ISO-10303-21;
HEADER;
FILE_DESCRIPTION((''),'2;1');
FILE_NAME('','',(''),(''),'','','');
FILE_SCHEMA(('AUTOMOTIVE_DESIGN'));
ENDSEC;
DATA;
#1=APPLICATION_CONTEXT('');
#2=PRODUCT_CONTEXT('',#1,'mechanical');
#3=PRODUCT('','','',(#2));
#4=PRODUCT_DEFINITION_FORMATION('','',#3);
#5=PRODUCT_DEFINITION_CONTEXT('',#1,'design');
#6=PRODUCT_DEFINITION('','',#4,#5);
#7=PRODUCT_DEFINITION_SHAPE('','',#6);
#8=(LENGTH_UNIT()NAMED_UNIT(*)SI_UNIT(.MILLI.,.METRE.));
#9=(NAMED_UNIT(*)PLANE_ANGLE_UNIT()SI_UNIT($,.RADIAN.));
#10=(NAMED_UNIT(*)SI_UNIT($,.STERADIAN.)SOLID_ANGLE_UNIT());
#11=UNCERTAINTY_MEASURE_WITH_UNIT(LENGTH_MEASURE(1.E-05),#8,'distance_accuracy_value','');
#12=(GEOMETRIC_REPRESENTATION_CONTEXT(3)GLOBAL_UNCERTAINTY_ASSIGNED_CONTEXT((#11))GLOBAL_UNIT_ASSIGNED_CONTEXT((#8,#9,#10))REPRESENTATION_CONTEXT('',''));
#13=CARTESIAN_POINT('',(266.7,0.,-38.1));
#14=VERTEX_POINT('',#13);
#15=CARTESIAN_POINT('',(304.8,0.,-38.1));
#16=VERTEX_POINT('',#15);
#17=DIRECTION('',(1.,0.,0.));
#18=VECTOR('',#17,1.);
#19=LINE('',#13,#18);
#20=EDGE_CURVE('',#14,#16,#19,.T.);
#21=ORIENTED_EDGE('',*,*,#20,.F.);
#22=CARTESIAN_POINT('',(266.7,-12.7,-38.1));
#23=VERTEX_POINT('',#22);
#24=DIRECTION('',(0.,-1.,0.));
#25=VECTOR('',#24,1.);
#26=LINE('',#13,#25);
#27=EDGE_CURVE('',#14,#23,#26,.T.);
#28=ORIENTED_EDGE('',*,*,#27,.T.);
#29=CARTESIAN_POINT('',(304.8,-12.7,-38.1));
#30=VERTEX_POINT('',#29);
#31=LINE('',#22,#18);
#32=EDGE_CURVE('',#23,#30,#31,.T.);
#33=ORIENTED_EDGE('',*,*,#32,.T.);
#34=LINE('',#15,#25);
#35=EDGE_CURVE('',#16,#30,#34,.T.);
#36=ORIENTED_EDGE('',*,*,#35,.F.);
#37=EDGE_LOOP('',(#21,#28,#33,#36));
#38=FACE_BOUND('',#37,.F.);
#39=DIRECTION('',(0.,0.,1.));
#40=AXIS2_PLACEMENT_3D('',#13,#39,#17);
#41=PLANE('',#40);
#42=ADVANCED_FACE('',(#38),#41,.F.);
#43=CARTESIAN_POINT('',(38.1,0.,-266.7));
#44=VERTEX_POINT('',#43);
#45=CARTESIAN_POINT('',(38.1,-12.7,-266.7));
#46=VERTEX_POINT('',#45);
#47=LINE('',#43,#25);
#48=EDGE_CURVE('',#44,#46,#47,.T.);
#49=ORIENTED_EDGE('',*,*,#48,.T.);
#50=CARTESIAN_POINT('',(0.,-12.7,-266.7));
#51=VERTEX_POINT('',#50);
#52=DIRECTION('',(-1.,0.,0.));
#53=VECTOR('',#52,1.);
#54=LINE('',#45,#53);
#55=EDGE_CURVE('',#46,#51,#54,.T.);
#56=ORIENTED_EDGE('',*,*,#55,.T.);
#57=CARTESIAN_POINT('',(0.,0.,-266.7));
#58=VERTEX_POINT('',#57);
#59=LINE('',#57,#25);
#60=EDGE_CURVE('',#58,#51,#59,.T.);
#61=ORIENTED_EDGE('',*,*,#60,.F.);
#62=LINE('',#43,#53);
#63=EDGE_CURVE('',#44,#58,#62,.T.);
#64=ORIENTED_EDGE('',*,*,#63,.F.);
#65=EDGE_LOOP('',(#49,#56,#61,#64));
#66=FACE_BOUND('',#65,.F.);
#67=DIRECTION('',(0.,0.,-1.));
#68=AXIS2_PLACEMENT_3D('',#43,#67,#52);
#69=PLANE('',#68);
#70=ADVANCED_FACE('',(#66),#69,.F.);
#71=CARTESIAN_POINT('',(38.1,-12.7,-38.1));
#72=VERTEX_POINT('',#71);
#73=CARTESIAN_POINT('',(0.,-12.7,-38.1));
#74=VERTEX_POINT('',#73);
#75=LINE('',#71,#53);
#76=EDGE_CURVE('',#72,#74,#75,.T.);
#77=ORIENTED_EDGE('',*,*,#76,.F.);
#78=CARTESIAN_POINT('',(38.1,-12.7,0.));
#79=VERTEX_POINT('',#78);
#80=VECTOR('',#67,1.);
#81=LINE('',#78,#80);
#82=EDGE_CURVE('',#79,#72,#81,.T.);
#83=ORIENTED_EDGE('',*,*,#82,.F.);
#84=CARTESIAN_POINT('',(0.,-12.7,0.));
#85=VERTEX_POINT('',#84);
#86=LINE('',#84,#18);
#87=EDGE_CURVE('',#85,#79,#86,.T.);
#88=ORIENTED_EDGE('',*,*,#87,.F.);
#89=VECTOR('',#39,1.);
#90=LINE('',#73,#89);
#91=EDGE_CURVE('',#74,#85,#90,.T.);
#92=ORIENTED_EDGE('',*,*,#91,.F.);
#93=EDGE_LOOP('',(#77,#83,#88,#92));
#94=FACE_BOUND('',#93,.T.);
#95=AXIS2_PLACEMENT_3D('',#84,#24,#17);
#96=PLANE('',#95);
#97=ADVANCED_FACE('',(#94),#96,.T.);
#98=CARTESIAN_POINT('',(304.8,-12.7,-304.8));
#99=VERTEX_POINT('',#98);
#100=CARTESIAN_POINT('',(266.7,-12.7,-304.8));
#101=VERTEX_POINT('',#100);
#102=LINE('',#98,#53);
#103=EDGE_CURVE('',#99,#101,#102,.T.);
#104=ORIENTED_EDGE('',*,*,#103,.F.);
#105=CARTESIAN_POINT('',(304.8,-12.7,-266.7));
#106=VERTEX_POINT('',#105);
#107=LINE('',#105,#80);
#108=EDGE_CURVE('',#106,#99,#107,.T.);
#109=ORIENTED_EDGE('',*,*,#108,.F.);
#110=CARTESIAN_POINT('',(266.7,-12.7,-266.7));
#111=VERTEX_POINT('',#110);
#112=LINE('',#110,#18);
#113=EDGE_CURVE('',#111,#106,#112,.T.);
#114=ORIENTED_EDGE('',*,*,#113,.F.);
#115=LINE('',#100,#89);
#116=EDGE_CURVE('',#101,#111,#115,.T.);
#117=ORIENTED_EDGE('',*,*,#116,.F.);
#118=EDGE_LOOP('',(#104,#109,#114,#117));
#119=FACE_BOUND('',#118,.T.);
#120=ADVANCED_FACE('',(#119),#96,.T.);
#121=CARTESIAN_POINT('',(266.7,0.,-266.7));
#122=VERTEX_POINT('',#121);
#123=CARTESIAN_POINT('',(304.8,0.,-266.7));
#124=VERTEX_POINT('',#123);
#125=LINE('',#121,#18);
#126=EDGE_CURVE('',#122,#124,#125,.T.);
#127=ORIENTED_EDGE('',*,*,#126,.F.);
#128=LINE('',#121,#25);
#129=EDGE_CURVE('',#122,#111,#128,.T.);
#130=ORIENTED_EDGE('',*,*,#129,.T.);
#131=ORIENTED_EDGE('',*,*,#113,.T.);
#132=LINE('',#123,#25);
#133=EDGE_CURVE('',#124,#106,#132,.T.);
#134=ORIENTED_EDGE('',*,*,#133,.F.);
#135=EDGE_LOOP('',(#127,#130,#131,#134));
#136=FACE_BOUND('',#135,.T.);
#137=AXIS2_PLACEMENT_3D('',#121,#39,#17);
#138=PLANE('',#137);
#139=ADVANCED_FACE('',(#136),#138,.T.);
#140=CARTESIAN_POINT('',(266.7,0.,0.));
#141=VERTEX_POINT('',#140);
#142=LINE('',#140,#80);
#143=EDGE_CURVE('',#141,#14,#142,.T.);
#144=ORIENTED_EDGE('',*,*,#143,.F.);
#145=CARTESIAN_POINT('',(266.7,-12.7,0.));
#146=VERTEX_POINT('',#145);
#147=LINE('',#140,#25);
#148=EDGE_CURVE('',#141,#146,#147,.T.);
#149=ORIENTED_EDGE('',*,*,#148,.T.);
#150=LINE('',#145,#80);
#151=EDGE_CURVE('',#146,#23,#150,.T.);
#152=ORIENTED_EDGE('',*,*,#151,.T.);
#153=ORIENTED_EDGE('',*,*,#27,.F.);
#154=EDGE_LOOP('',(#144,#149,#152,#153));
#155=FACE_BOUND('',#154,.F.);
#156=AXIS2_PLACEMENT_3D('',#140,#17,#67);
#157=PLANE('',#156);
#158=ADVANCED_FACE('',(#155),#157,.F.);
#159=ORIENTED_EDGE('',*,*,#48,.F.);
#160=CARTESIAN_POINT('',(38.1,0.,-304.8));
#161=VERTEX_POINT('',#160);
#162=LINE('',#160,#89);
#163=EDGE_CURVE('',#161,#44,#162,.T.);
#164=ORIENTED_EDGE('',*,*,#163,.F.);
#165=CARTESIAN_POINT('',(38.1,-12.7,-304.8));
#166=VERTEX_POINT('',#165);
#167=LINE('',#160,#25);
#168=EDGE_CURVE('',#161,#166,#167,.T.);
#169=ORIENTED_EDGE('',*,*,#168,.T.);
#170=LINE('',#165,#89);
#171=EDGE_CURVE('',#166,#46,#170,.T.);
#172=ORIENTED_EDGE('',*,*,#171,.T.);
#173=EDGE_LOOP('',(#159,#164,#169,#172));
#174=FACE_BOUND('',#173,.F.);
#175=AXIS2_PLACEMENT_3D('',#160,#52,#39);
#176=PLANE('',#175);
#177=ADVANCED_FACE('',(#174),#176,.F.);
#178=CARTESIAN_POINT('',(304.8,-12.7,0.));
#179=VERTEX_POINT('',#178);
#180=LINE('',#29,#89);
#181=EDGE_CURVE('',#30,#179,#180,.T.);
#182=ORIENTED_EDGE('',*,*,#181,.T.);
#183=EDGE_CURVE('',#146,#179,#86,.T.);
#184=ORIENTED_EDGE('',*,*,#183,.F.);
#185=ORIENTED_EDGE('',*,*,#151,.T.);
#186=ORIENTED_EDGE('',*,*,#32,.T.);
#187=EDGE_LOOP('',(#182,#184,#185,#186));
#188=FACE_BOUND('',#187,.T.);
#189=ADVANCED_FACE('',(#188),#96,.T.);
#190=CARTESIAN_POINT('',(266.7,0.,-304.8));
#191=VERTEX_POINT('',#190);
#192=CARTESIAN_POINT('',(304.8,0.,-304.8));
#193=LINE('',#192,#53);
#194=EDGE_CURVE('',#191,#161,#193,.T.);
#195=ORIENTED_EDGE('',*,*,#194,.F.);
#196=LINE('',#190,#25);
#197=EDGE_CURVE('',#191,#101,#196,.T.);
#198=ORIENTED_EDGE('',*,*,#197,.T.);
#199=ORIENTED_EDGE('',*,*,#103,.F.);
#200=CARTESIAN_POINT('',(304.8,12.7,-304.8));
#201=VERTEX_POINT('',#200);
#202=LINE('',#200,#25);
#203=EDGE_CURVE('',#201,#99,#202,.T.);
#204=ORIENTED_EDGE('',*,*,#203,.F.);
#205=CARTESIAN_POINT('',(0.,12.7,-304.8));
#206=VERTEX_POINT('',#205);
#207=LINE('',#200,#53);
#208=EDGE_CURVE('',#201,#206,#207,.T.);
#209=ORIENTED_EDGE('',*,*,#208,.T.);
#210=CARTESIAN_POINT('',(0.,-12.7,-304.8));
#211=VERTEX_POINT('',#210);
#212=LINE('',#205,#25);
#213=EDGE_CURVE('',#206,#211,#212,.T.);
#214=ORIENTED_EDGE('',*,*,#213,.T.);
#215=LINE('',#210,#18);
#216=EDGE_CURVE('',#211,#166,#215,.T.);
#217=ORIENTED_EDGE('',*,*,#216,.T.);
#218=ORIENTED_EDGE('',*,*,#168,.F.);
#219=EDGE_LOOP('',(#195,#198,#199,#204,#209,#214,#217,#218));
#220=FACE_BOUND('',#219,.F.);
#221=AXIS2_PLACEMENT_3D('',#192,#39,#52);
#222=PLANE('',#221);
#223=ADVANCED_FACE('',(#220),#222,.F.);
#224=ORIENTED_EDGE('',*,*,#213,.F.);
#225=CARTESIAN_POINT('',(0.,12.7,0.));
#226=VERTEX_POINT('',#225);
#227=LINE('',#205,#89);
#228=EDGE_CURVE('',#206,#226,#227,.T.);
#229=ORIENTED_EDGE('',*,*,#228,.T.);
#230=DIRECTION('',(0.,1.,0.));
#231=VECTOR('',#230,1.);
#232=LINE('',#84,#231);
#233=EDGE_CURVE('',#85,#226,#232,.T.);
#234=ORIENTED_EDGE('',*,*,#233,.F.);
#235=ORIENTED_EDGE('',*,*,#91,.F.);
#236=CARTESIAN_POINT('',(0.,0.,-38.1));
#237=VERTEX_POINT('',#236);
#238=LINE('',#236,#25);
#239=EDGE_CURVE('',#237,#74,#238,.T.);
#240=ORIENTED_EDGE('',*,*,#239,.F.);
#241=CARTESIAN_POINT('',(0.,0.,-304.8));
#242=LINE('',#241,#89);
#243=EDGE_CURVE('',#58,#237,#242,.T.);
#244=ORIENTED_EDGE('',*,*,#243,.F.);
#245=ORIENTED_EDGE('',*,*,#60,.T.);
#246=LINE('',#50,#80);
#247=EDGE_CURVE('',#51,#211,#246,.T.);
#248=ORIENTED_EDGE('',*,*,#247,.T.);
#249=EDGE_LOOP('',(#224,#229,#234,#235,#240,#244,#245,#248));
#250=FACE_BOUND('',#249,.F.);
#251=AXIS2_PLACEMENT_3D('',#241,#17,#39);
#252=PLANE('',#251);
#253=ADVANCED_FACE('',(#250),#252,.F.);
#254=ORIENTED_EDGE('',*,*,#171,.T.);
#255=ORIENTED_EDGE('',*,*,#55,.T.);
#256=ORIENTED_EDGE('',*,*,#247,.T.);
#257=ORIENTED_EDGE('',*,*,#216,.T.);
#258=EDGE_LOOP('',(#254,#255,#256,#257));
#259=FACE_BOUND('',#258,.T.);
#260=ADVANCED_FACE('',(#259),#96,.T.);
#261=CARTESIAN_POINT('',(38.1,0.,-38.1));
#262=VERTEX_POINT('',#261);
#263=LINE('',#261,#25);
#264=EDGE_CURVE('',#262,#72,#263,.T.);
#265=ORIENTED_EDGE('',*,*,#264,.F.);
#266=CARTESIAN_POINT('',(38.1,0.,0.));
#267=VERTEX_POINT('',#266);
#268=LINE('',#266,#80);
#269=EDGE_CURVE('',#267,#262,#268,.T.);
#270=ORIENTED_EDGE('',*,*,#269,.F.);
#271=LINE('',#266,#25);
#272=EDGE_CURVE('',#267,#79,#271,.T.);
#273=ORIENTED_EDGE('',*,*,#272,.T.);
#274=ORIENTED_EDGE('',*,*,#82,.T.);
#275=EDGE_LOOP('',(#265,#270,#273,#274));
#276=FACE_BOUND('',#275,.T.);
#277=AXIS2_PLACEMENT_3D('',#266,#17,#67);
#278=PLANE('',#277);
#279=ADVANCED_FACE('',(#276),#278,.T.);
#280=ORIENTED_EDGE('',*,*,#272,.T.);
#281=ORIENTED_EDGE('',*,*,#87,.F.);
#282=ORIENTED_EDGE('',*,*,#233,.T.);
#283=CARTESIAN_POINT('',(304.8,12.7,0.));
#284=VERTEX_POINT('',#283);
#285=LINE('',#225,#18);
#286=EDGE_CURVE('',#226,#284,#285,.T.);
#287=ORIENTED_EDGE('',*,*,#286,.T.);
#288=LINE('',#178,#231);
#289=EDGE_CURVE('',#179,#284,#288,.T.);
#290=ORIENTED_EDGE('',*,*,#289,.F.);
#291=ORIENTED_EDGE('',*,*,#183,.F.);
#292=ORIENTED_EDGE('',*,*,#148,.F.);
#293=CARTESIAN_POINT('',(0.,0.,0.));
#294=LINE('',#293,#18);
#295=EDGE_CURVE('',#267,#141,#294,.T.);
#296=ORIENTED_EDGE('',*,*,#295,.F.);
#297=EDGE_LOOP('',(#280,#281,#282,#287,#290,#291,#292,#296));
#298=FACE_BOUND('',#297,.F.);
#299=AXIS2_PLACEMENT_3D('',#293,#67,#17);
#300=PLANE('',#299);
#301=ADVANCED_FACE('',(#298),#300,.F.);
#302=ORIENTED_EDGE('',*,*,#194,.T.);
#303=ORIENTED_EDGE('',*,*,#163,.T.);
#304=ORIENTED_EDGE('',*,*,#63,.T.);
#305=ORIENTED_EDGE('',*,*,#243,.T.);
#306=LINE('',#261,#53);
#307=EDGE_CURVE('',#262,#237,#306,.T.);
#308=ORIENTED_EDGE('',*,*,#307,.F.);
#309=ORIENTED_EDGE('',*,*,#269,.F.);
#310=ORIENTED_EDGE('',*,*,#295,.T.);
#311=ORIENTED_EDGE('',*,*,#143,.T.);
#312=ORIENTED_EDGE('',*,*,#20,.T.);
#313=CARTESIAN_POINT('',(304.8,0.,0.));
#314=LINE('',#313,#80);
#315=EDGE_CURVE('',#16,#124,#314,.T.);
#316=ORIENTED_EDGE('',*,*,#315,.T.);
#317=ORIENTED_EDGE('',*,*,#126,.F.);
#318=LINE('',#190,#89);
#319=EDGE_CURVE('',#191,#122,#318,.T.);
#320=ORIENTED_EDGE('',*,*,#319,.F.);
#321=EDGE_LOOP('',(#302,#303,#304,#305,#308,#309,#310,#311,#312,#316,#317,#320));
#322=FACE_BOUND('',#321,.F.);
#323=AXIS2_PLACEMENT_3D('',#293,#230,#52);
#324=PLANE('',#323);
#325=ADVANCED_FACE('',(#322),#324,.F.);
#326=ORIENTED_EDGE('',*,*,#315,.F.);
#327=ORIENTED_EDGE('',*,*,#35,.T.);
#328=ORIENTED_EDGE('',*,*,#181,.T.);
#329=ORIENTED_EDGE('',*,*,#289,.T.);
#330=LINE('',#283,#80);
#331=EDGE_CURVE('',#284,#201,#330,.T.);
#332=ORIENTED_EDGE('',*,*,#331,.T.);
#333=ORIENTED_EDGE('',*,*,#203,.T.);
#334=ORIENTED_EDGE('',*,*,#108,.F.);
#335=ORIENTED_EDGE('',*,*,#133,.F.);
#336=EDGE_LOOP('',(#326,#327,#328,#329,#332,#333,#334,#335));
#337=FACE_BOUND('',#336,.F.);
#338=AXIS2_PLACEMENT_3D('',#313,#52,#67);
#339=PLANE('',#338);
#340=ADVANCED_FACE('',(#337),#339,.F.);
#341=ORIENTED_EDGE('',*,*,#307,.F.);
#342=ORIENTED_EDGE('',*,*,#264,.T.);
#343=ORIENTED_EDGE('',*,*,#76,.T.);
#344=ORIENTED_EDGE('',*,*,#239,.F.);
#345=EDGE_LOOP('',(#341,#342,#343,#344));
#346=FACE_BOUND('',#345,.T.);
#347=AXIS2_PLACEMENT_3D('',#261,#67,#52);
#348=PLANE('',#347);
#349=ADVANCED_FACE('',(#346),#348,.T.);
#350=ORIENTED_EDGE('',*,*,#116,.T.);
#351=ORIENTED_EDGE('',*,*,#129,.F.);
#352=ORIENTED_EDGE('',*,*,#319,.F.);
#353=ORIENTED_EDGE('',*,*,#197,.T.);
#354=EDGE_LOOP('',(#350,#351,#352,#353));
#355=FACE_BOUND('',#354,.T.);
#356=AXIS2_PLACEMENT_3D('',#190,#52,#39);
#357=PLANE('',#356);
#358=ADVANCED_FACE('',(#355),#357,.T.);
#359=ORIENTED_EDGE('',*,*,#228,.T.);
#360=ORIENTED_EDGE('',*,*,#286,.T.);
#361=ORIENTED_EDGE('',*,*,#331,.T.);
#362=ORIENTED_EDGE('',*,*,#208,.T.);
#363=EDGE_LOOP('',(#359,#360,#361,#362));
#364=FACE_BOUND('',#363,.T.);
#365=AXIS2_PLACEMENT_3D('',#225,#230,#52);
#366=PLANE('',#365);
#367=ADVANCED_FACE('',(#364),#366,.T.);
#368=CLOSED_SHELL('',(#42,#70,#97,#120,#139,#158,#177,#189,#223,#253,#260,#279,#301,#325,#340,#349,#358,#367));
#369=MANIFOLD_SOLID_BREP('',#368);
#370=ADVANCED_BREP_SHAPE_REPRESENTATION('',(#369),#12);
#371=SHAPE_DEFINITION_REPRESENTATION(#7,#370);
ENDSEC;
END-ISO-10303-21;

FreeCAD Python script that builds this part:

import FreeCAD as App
import Part
import Sketcher

V = App.Vector
Q = App.Units.Quantity

doc = App.newDocument("Part")
body = doc.addObject("PartDesign::Body", "Body")

# Sketch on XZ plane
sketch1 = doc.addObject("Sketcher::SketchObject", "Sketch")
body.addObject(sketch1)
sketch1.AttachmentSupport = (doc.XZ_Plane, [""])
sketch1.MapMode = "FlatFace"
sketch1.addGeometry([
    Part.LineSegment(V(0, -305, 0), V(0, 0, 0)),
    Part.LineSegment(V(0, 0, 0), V(305, 0, 0)),
    Part.LineSegment(V(305, 0, 0), V(305, -305, 0)),
    Part.LineSegment(V(305, -305, 0), V(0, -305, 0)),
], False)
sketch1.addConstraint([
    Sketcher.Constraint("Coincident", 0, 2, 1, 1),
    Sketcher.Constraint("Coincident", 1, 2, 2, 1),
    Sketcher.Constraint("Coincident", 2, 2, 3, 1),
    Sketcher.Constraint("Coincident", 3, 2, 0, 1),
    Sketcher.Constraint("Vertical", 0),
    Sketcher.Constraint("Horizontal", 1),
    Sketcher.Constraint("Vertical", 2),
    Sketcher.Constraint("Horizontal", 3),
    Sketcher.Constraint("Coincident", 0, 2, -1, 1),
    Sketcher.Constraint("Equal", 3, 0),
    Sketcher.Constraint("DistanceX", 1, 1, 1, 2, Q("12 in")),
])
pad1 = doc.addObject("PartDesign::Pad", "Pad")
body.addObject(pad1)
pad1.Profile = sketch1
pad1.Length = Q("0.5 in")
pad1.Reversed = True

# Sketch on XZ plane
sketch2 = doc.addObject("Sketcher::SketchObject", "Sketch001")
body.addObject(sketch2)
sketch2.AttachmentSupport = (doc.XZ_Plane, [""])
sketch2.MapMode = "FlatFace"
sketch2.addGeometry([
    Part.LineSegment(V(305, 0, 0), V(267, 0, 0)),  # 0
    Part.LineSegment(V(267, 0, 0), V(267, -38, 0)),  # 1
    Part.LineSegment(V(267, -38, 0), V(305, -38, 0)),  # 2
    Part.LineSegment(V(305, -38, 0), V(305, 0, 0)),  # 3
    Part.LineSegment(V(38, 0, 0), V(0, 0, 0)),  # 4
    Part.LineSegment(V(0, 0, 0), V(0, -38, 0)),  # 5
    Part.LineSegment(V(0, -38, 0), V(38, -38, 0)),  # 6
    Part.LineSegment(V(38, -38, 0), V(38, 0, 0)),  # 7
    Part.LineSegment(V(267, -305, 0), V(305, -305, 0)),  # 8
    Part.LineSegment(V(305, -305, 0), V(305, -267, 0)),  # 9
    Part.LineSegment(V(305, -267, 0), V(267, -267, 0)),  # 10
    Part.LineSegment(V(267, -267, 0), V(267, -305, 0)),  # 11
    Part.LineSegment(V(38, -305, 0), V(38, -267, 0)),  # 12
    Part.LineSegment(V(38, -267, 0), V(0, -267, 0)),  # 13
    Part.LineSegment(V(0, -267, 0), V(0, -305, 0)),  # 14
    Part.LineSegment(V(0, -305, 0), V(38, -305, 0)),  # 15
], False)
sketch2.addConstraint([
    Sketcher.Constraint("Coincident", 0, 2, 1, 1),
    Sketcher.Constraint("Coincident", 1, 2, 2, 1),
    Sketcher.Constraint("Coincident", 2, 2, 3, 1),
    Sketcher.Constraint("Coincident", 3, 2, 0, 1),
    Sketcher.Constraint("Coincident", 4, 2, 5, 1),
    Sketcher.Constraint("Coincident", 5, 2, 6, 1),
    Sketcher.Constraint("Coincident", 6, 2, 7, 1),
    Sketcher.Constraint("Coincident", 7, 2, 4, 1),
    Sketcher.Constraint("Coincident", 8, 2, 9, 1),
    Sketcher.Constraint("Coincident", 9, 2, 10, 1),
    Sketcher.Constraint("Coincident", 10, 2, 11, 1),
    Sketcher.Constraint("Coincident", 11, 2, 8, 1),
    Sketcher.Constraint("Coincident", 12, 2, 13, 1),
    Sketcher.Constraint("Coincident", 13, 2, 14, 1),
    Sketcher.Constraint("Coincident", 14, 2, 15, 1),
    Sketcher.Constraint("Coincident", 15, 2, 12, 1),
    Sketcher.Constraint("Horizontal", 0),
    Sketcher.Constraint("Vertical", 1),
    Sketcher.Constraint("Horizontal", 2),
    Sketcher.Constraint("Vertical", 3),
    Sketcher.Constraint("Horizontal", 4),
    Sketcher.Constraint("Vertical", 5),
    Sketcher.Constraint("Horizontal", 6),
    Sketcher.Constraint("Vertical", 7),
    Sketcher.Constraint("Horizontal", 8),
    Sketcher.Constraint("Vertical", 9),
    Sketcher.Constraint("Horizontal", 10),
    Sketcher.Constraint("Vertical", 11),
    Sketcher.Constraint("Vertical", 12),
    Sketcher.Constraint("Horizontal", 13),
    Sketcher.Constraint("Vertical", 14),
    Sketcher.Constraint("Horizontal", 15),
    Sketcher.Constraint("Coincident", 4, 2, -1, 1),
    Sketcher.Constraint("PointOnObject", 0, 2, -1),
    Sketcher.Constraint("PointOnObject", 13, 2, -2),
    Sketcher.Constraint("Horizontal", 2, 2, 5, 2),
    Sketcher.Constraint("Horizontal", 10, 2, 12, 2),
    Sketcher.Constraint("Horizontal", 11, 2, 14, 2),
    Sketcher.Constraint("Vertical", 3, 2, 8, 2),
    Sketcher.Constraint("Vertical", 1, 2, 10, 2),
    Sketcher.Constraint("Vertical", 7, 2, 12, 2),
    Sketcher.Constraint("Equal", 2, 4),
    Sketcher.Constraint("Equal", 15, 1),
    Sketcher.Constraint("Equal", 7, 9),
    Sketcher.Constraint("DistanceX", 0, 2, 0, 1, Q("1.5 in")),
    Sketcher.Constraint("DistanceX", -1, 1, 2, 2, Q("12 in")),
    Sketcher.Constraint("DistanceY", 8, 2, -1, 1, Q("12 in")),
])
pad2 = doc.addObject("PartDesign::Pad", "Pad001")
body.addObject(pad2)
pad2.Profile = sketch2
pad2.Length = Q("0.5 in")

doc.recompute()
